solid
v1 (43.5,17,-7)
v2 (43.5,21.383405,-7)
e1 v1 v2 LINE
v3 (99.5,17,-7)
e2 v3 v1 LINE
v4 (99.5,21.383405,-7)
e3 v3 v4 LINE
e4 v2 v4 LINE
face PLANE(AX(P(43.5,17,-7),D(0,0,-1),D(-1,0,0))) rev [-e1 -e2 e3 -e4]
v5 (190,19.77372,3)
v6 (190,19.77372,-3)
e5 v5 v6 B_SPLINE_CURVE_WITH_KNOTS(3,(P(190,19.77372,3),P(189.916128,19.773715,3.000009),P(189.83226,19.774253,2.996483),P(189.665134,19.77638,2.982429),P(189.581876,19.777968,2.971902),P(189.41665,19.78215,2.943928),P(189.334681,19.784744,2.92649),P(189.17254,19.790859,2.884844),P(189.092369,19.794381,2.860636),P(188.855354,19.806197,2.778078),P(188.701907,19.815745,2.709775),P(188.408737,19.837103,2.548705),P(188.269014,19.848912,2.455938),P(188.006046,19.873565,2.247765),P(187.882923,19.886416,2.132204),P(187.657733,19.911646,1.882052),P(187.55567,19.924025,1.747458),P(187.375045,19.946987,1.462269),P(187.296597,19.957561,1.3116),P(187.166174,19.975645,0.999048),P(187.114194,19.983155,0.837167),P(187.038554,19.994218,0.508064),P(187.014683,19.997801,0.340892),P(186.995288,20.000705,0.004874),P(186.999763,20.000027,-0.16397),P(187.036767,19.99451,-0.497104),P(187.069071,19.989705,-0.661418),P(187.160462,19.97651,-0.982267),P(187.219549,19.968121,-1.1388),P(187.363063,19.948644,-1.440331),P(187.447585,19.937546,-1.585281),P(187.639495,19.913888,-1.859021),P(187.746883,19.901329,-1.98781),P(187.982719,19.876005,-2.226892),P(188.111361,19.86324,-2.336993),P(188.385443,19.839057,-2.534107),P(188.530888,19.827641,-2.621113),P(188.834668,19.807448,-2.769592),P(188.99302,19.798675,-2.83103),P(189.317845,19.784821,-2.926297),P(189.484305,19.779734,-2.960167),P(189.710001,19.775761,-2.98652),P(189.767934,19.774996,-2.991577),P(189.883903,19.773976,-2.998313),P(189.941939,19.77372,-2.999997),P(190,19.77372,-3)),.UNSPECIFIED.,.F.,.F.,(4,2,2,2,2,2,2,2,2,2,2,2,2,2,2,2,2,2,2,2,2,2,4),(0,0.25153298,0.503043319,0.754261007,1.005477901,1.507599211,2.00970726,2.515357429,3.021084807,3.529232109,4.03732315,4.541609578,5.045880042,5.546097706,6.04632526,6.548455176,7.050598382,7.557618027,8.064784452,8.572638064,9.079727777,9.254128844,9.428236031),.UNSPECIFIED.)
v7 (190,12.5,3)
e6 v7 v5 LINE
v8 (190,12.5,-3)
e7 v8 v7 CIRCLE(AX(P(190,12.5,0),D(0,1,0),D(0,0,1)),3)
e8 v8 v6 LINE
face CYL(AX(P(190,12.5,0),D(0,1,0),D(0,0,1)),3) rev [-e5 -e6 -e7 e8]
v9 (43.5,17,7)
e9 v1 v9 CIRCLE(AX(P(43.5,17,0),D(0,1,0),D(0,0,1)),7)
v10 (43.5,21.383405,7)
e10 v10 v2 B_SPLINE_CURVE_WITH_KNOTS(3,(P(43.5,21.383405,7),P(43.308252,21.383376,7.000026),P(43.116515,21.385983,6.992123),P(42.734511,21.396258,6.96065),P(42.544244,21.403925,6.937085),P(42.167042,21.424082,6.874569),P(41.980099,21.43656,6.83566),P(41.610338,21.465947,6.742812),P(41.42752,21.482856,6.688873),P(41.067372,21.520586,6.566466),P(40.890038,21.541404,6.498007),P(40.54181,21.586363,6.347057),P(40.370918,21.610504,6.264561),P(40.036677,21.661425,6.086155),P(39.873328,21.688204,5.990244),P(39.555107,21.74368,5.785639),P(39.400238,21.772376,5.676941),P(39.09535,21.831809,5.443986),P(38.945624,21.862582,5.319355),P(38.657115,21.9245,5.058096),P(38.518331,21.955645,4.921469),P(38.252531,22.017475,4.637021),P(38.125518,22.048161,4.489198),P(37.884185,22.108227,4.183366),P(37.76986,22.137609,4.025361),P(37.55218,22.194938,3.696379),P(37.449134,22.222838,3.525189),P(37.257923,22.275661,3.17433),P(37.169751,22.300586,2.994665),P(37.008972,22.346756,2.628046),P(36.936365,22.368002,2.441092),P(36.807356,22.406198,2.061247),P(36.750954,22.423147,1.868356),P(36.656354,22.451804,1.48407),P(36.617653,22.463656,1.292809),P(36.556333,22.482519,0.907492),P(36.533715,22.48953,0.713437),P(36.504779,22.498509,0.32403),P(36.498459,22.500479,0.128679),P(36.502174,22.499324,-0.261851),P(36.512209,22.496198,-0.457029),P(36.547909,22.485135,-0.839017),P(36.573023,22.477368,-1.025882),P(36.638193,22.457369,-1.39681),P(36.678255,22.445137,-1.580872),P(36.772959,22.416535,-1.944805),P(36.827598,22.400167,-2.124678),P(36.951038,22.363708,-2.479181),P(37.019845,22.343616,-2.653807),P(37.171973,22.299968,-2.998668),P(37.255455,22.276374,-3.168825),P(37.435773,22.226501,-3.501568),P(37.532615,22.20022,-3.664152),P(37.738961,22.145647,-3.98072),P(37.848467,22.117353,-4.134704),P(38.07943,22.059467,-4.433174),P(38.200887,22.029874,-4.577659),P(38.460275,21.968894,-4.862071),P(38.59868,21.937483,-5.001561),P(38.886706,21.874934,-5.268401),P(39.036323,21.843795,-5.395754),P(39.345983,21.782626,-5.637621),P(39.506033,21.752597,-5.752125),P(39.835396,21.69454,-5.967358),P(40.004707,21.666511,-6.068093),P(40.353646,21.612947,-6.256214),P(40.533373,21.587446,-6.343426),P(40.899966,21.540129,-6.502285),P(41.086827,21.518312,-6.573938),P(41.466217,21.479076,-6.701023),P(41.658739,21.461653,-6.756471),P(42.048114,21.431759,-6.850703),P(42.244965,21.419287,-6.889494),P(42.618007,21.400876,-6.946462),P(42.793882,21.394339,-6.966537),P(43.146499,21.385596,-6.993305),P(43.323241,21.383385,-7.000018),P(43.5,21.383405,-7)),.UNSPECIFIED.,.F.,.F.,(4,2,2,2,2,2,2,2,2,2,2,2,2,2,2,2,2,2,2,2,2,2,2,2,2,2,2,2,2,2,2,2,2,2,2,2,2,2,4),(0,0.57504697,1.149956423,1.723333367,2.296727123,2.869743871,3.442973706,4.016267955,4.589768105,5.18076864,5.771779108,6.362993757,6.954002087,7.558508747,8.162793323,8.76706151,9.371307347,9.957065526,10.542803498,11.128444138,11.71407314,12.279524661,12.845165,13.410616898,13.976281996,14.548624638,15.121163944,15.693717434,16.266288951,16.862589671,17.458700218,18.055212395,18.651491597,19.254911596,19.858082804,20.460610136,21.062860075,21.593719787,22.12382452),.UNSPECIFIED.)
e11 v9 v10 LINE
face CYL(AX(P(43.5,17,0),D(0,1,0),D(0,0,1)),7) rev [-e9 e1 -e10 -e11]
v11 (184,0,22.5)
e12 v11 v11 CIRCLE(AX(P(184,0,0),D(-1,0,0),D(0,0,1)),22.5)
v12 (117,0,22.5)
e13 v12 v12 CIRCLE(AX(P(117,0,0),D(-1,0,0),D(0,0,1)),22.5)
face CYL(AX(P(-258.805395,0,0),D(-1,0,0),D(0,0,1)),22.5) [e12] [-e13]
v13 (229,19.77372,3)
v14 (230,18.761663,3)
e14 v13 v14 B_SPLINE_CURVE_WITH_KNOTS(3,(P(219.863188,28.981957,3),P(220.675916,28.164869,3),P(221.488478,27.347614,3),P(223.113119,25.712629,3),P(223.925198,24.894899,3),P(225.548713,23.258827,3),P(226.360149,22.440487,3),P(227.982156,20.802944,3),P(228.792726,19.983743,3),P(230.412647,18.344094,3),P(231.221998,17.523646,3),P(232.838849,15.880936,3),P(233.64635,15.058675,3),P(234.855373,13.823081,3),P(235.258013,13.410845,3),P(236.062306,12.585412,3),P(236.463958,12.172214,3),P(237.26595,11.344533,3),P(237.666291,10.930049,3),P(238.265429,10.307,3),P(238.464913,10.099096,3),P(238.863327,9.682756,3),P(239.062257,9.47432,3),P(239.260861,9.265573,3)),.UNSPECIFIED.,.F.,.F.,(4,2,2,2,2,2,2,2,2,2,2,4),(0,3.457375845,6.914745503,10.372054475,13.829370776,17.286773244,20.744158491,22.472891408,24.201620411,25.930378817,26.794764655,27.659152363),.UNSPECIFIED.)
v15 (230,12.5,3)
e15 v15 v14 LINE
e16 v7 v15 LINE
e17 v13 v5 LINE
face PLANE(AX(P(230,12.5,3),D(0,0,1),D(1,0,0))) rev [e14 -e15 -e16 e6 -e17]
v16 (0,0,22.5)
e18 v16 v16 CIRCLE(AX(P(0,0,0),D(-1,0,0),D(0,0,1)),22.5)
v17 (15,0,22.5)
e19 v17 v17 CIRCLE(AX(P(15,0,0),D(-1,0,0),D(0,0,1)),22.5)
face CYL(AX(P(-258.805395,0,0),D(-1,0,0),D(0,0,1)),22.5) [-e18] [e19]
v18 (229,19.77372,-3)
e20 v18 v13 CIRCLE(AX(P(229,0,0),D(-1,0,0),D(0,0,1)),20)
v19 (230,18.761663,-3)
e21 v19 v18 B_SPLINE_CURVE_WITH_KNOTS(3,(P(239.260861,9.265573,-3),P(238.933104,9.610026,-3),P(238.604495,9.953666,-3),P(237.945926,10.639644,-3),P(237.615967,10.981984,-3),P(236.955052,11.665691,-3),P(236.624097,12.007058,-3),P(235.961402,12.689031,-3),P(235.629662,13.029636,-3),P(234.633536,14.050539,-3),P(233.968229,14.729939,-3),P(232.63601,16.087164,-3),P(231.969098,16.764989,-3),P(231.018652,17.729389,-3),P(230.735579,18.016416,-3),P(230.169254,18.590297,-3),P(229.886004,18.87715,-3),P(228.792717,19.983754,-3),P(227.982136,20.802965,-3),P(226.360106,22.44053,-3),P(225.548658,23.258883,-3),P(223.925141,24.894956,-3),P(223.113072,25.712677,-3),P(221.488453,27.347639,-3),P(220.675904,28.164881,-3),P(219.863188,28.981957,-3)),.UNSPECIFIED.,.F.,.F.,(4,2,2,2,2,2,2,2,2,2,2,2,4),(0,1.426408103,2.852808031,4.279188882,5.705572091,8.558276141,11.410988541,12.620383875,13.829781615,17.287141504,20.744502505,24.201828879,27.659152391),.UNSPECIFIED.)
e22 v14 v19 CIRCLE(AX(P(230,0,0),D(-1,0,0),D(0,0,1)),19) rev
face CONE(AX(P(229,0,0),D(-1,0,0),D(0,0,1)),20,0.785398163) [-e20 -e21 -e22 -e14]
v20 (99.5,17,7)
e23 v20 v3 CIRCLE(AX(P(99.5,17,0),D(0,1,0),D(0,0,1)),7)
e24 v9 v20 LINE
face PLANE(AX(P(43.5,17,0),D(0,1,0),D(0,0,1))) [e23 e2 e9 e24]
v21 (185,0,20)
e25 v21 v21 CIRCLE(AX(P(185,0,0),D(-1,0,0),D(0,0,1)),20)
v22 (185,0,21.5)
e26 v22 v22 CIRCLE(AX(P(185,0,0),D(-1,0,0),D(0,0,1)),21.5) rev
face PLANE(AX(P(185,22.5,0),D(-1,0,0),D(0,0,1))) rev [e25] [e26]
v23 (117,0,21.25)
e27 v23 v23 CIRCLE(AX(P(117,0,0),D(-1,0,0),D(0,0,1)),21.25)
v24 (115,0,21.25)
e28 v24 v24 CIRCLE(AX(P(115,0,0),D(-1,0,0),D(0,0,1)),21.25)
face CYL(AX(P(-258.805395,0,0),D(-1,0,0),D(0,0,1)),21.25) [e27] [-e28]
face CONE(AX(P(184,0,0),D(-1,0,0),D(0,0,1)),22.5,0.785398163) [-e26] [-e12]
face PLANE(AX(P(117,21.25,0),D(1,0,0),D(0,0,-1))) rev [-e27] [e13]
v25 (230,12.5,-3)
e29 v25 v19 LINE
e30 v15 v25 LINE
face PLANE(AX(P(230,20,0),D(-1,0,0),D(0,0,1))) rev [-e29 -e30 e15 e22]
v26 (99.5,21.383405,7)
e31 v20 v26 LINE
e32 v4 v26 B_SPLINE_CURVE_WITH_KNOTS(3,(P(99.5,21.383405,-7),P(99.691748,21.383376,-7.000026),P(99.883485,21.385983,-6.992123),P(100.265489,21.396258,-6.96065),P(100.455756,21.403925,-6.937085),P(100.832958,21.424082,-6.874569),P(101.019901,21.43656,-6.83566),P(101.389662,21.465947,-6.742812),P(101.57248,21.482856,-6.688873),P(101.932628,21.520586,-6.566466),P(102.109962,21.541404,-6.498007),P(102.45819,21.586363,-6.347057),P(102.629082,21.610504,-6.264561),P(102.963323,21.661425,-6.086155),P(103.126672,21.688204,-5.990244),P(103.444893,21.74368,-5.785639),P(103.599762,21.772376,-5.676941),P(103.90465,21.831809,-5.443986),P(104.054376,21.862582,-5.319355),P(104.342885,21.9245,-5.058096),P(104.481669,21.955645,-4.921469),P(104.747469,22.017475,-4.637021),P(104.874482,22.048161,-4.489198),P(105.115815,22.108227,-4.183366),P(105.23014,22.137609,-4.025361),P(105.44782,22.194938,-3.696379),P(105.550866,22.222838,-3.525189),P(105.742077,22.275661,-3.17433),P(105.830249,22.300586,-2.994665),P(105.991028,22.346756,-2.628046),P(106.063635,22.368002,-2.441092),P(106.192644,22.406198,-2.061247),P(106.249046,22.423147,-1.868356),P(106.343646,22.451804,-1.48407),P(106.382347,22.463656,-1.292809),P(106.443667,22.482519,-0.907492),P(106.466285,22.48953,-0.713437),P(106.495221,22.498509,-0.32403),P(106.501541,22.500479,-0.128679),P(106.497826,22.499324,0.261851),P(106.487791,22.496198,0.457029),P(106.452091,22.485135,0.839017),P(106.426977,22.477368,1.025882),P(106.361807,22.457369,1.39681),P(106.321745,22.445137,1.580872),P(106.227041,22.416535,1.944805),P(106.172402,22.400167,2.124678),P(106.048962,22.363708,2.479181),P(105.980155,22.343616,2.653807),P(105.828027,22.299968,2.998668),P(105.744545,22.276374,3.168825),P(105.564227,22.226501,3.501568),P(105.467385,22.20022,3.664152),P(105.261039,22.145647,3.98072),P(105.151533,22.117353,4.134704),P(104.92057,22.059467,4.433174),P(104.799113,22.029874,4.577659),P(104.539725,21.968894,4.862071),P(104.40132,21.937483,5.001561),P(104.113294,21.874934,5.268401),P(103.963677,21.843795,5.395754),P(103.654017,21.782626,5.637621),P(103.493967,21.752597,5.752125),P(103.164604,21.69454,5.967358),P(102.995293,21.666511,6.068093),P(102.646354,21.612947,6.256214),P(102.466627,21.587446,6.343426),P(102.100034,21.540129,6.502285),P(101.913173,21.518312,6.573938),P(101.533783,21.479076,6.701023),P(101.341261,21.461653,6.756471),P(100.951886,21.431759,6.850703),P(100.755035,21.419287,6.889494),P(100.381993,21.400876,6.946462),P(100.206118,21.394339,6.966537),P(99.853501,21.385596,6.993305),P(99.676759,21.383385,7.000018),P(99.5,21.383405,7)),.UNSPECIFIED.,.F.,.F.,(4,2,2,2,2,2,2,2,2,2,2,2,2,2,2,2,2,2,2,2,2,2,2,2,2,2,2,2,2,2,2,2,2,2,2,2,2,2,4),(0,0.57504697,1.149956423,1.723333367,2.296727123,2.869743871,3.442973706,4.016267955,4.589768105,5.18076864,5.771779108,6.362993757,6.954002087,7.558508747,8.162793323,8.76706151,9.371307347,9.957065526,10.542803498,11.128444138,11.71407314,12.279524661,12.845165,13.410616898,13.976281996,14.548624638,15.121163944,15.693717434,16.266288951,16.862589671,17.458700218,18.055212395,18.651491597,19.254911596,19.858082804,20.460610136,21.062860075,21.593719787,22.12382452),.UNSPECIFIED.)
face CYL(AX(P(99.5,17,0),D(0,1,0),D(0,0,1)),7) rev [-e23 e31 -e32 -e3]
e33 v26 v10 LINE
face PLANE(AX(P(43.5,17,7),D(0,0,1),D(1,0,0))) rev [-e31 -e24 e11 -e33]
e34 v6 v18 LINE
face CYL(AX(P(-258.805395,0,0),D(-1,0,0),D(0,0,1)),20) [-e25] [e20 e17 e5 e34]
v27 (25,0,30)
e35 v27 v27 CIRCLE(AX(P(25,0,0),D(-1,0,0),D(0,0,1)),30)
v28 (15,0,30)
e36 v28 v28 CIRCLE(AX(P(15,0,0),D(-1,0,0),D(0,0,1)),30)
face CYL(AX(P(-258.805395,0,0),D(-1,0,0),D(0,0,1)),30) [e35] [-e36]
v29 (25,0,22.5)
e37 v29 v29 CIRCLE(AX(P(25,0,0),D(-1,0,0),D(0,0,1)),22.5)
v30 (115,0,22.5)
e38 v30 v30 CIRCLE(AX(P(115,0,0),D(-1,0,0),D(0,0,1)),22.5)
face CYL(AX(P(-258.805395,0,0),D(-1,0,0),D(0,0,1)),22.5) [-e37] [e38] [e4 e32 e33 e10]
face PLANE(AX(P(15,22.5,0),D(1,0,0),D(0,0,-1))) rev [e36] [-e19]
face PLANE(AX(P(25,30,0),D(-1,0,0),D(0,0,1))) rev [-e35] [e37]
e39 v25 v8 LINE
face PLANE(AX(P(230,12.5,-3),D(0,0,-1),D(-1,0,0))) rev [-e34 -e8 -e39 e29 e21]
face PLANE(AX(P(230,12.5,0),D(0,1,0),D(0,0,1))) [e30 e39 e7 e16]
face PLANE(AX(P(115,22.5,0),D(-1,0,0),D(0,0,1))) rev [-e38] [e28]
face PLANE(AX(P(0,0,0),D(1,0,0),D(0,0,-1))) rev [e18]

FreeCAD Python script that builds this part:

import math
import FreeCAD as App
import Part
import Sketcher
Q = App.Units.Quantity


def edges_at(feature, points):
    """Names of the edges that pass closest to the given points."""
    edges = feature.Shape.Edges
    near = lambda p: min(range(len(edges)), key=lambda i: edges[i].distToShape(Part.Vertex(*p))[0])
    return sorted({f"Edge{near(p) + 1}" for p in points})

doc = App.newDocument("Part")
body = doc.addObject("PartDesign::Body", "Body")

sketch1 = body.newObject("Sketcher::SketchObject", "Sketch")
sketch1.AttachmentSupport = (doc.getObject("XY_Plane"), [""])
sketch1.MapMode = "FlatFace"
sketch1.addGeometry([
    Part.LineSegment(App.Vector(0, 22.5, 0), App.Vector(0, 0, 0)),
    Part.LineSegment(App.Vector(0, 0, 0), App.Vector(230, 0, 0)),
    Part.LineSegment(App.Vector(230, 0, 0), App.Vector(230, 20, 0)),
    Part.LineSegment(App.Vector(230, 20, 0), App.Vector(185, 20, 0)),
    Part.LineSegment(App.Vector(185, 20, 0), App.Vector(185, 22.5, 0)),
    Part.LineSegment(App.Vector(185, 22.5, 0), App.Vector(117, 22.5, 0)),
    Part.LineSegment(App.Vector(117, 22.5, 0), App.Vector(117, 21.2, 0)),
    Part.LineSegment(App.Vector(117, 21.2, 0), App.Vector(115, 21.2, 0)),
    Part.LineSegment(App.Vector(115, 21.2, 0), App.Vector(115, 22.5, 0)),
    Part.LineSegment(App.Vector(115, 22.5, 0), App.Vector(25, 22.5, 0)),
    Part.LineSegment(App.Vector(25, 22.5, 0), App.Vector(25, 30, 0)),
    Part.LineSegment(App.Vector(25, 30, 0), App.Vector(15, 30, 0)),
    Part.LineSegment(App.Vector(15, 30, 0), App.Vector(15, 22.5, 0)),
    Part.LineSegment(App.Vector(15, 22.5, 0), App.Vector(0, 22.5, 0)),
], False)
sketch1.addConstraint([
    Sketcher.Constraint("Coincident", 0, 2, 1, 1),
    Sketcher.Constraint("Coincident", 1, 2, 2, 1),
    Sketcher.Constraint("Coincident", 2, 2, 3, 1),
    Sketcher.Constraint("Coincident", 3, 2, 4, 1),
    Sketcher.Constraint("Coincident", 4, 2, 5, 1),
    Sketcher.Constraint("Coincident", 5, 2, 6, 1),
    Sketcher.Constraint("Coincident", 6, 2, 7, 1),
    Sketcher.Constraint("Coincident", 7, 2, 8, 1),
    Sketcher.Constraint("Coincident", 8, 2, 9, 1),
    Sketcher.Constraint("Coincident", 9, 2, 10, 1),
    Sketcher.Constraint("Coincident", 10, 2, 11, 1),
    Sketcher.Constraint("Coincident", 11, 2, 12, 1),
    Sketcher.Constraint("Coincident", 12, 2, 13, 1),
    Sketcher.Constraint("Coincident", 13, 2, 0, 1),
    Sketcher.Constraint("Vertical", 0),
    Sketcher.Constraint("Horizontal", 1),
    Sketcher.Constraint("Vertical", 2),
    Sketcher.Constraint("Horizontal", 3),
    Sketcher.Constraint("Vertical", 4),
    Sketcher.Constraint("Horizontal", 5),
    Sketcher.Constraint("Vertical", 6),
    Sketcher.Constraint("Horizontal", 7),
    Sketcher.Constraint("Vertical", 8),
    Sketcher.Constraint("Horizontal", 9),
    Sketcher.Constraint("Vertical", 10),
    Sketcher.Constraint("Horizontal", 11),
    Sketcher.Constraint("Vertical", 12),
    Sketcher.Constraint("Horizontal", 13),
    Sketcher.Constraint("Coincident", 0, 2, -1, 1),
    Sketcher.Constraint("Horizontal", 5, 2, 8, 2),
    Sketcher.Constraint("Horizontal", 9, 2, 12, 2),
    Sketcher.Constraint("DistanceX", 1, 1, 1, 2, Q("230 mm")),
    Sketcher.Constraint("DistanceX", 3, 2, 3, 1, Q("45 mm")),
    Sketcher.Constraint("DistanceX", 5, 2, 5, 1, Q("68 mm")),
    Sketcher.Constraint("DistanceX", 7, 2, 7, 1, Q("2 mm")),
    Sketcher.Constraint("DistanceX", 9, 2, 9, 1, Q("90 mm")),
    Sketcher.Constraint("DistanceX", 11, 2, 11, 1, Q("10 mm")),
    Sketcher.Constraint("DistanceY", 2, 1, 2, 2, Q("20 mm")),
    Sketcher.Constraint("DistanceY", 0, 2, 0, 1, Q("22.5 mm")),
    Sketcher.Constraint("DistanceY", 10, 1, 10, 2, Q("7.5 mm")),
    Sketcher.Constraint("DistanceY", 6, 2, 6, 1, Q("1.25 mm")),
])
revolution = body.newObject("PartDesign::Revolution", "Revolution")
revolution.Profile = sketch1
revolution.ReferenceAxis = (sketch1, ["H_Axis"])
revolution.Angle = 360
doc.recompute()

chamfer = body.newObject("PartDesign::Chamfer", "Chamfer")
chamfer.Base = (revolution, edges_at(revolution, [(185, -22.5, 0), (230, -20, 0)]))
chamfer.Size = 1

sketch2 = body.newObject("Sketcher::SketchObject", "Sketch001")
sketch2.AttachmentSupport = (doc.getObject("XZ_Plane"), [""])
sketch2.MapMode = "FlatFace"
sketch2.AttachmentOffset = App.Placement(App.Vector(0, 0, -20), App.Rotation())
sketch2.addGeometry([
    Part.LineSegment(App.Vector(190, 3, 0), App.Vector(230, 3, 0)),
    Part.ArcOfCircle(Part.Circle(App.Vector(230, 0, 0), App.Vector(0, 0, 1), 3), math.radians(-90), math.radians(90)),
    Part.LineSegment(App.Vector(230, -3, 0), App.Vector(190, -3, 0)),
    Part.ArcOfCircle(Part.Circle(App.Vector(190, 0, 0), App.Vector(0, 0, 1), 3), math.radians(90), math.radians(270)),
], False)
sketch2.addConstraint([
    Sketcher.Constraint("Tangent", 0, 2, 1, 2),
    Sketcher.Constraint("Tangent", 1, 1, 2, 1),
    Sketcher.Constraint("Tangent", 2, 2, 3, 2),
    Sketcher.Constraint("Tangent", 3, 1, 0, 1),
    Sketcher.Constraint("Horizontal", 0),
    Sketcher.Constraint("Horizontal", 2),
    Sketcher.Constraint("PointOnObject", 1, 3, -1),
    Sketcher.Constraint("Radius", 1, Q("3 mm")),
    Sketcher.Constraint("DistanceX", 0, 1, 0, 2, Q("40 mm")),
    Sketcher.Constraint("DistanceX", -1, 1, 1, 3, Q("230 mm")),
])
pocket1 = body.newObject("PartDesign::Pocket", "Pocket")
pocket1.Profile = sketch2
pocket1.Length = 7.5
pocket1.Reversed = True

sketch3 = body.newObject("Sketcher::SketchObject", "Sketch002")
sketch3.AttachmentSupport = (doc.getObject("XZ_Plane"), [""])
sketch3.MapMode = "FlatFace"
sketch3.AttachmentOffset = App.Placement(App.Vector(0, 0, -22.5), App.Rotation())
sketch3.addGeometry([
    Part.LineSegment(App.Vector(100, -7, 0), App.Vector(44, -7, 0)),
    Part.ArcOfCircle(Part.Circle(App.Vector(44, 0, 0), App.Vector(0, 0, 1), 7), math.radians(90), math.radians(270)),
    Part.LineSegment(App.Vector(44, 7, 0), App.Vector(100, 7, 0)),
    Part.ArcOfCircle(Part.Circle(App.Vector(100, 0, 0), App.Vector(0, 0, 1), 7), math.radians(-90), math.radians(90)),
], False)
sketch3.addConstraint([
    Sketcher.Constraint("Tangent", 0, 2, 1, 2),
    Sketcher.Constraint("Tangent", 1, 1, 2, 1),
    Sketcher.Constraint("Tangent", 2, 2, 3, 2),
    Sketcher.Constraint("Tangent", 3, 1, 0, 1),
    Sketcher.Constraint("Horizontal", 0),
    Sketcher.Constraint("Horizontal", 2),
    Sketcher.Constraint("PointOnObject", 1, 3, -1),
    Sketcher.Constraint("Radius", 1, Q("7 mm")),
    Sketcher.Constraint("DistanceX", 0, 2, 0, 1, Q("56 mm")),
    Sketcher.Constraint("DistanceX", -1, 1, 1, 3, Q("43.5 mm")),
])
pocket2 = body.newObject("PartDesign::Pocket", "Pocket001")
pocket2.Profile = sketch3
pocket2.Length = 5.5
pocket2.Reversed = True

doc.recompute()
